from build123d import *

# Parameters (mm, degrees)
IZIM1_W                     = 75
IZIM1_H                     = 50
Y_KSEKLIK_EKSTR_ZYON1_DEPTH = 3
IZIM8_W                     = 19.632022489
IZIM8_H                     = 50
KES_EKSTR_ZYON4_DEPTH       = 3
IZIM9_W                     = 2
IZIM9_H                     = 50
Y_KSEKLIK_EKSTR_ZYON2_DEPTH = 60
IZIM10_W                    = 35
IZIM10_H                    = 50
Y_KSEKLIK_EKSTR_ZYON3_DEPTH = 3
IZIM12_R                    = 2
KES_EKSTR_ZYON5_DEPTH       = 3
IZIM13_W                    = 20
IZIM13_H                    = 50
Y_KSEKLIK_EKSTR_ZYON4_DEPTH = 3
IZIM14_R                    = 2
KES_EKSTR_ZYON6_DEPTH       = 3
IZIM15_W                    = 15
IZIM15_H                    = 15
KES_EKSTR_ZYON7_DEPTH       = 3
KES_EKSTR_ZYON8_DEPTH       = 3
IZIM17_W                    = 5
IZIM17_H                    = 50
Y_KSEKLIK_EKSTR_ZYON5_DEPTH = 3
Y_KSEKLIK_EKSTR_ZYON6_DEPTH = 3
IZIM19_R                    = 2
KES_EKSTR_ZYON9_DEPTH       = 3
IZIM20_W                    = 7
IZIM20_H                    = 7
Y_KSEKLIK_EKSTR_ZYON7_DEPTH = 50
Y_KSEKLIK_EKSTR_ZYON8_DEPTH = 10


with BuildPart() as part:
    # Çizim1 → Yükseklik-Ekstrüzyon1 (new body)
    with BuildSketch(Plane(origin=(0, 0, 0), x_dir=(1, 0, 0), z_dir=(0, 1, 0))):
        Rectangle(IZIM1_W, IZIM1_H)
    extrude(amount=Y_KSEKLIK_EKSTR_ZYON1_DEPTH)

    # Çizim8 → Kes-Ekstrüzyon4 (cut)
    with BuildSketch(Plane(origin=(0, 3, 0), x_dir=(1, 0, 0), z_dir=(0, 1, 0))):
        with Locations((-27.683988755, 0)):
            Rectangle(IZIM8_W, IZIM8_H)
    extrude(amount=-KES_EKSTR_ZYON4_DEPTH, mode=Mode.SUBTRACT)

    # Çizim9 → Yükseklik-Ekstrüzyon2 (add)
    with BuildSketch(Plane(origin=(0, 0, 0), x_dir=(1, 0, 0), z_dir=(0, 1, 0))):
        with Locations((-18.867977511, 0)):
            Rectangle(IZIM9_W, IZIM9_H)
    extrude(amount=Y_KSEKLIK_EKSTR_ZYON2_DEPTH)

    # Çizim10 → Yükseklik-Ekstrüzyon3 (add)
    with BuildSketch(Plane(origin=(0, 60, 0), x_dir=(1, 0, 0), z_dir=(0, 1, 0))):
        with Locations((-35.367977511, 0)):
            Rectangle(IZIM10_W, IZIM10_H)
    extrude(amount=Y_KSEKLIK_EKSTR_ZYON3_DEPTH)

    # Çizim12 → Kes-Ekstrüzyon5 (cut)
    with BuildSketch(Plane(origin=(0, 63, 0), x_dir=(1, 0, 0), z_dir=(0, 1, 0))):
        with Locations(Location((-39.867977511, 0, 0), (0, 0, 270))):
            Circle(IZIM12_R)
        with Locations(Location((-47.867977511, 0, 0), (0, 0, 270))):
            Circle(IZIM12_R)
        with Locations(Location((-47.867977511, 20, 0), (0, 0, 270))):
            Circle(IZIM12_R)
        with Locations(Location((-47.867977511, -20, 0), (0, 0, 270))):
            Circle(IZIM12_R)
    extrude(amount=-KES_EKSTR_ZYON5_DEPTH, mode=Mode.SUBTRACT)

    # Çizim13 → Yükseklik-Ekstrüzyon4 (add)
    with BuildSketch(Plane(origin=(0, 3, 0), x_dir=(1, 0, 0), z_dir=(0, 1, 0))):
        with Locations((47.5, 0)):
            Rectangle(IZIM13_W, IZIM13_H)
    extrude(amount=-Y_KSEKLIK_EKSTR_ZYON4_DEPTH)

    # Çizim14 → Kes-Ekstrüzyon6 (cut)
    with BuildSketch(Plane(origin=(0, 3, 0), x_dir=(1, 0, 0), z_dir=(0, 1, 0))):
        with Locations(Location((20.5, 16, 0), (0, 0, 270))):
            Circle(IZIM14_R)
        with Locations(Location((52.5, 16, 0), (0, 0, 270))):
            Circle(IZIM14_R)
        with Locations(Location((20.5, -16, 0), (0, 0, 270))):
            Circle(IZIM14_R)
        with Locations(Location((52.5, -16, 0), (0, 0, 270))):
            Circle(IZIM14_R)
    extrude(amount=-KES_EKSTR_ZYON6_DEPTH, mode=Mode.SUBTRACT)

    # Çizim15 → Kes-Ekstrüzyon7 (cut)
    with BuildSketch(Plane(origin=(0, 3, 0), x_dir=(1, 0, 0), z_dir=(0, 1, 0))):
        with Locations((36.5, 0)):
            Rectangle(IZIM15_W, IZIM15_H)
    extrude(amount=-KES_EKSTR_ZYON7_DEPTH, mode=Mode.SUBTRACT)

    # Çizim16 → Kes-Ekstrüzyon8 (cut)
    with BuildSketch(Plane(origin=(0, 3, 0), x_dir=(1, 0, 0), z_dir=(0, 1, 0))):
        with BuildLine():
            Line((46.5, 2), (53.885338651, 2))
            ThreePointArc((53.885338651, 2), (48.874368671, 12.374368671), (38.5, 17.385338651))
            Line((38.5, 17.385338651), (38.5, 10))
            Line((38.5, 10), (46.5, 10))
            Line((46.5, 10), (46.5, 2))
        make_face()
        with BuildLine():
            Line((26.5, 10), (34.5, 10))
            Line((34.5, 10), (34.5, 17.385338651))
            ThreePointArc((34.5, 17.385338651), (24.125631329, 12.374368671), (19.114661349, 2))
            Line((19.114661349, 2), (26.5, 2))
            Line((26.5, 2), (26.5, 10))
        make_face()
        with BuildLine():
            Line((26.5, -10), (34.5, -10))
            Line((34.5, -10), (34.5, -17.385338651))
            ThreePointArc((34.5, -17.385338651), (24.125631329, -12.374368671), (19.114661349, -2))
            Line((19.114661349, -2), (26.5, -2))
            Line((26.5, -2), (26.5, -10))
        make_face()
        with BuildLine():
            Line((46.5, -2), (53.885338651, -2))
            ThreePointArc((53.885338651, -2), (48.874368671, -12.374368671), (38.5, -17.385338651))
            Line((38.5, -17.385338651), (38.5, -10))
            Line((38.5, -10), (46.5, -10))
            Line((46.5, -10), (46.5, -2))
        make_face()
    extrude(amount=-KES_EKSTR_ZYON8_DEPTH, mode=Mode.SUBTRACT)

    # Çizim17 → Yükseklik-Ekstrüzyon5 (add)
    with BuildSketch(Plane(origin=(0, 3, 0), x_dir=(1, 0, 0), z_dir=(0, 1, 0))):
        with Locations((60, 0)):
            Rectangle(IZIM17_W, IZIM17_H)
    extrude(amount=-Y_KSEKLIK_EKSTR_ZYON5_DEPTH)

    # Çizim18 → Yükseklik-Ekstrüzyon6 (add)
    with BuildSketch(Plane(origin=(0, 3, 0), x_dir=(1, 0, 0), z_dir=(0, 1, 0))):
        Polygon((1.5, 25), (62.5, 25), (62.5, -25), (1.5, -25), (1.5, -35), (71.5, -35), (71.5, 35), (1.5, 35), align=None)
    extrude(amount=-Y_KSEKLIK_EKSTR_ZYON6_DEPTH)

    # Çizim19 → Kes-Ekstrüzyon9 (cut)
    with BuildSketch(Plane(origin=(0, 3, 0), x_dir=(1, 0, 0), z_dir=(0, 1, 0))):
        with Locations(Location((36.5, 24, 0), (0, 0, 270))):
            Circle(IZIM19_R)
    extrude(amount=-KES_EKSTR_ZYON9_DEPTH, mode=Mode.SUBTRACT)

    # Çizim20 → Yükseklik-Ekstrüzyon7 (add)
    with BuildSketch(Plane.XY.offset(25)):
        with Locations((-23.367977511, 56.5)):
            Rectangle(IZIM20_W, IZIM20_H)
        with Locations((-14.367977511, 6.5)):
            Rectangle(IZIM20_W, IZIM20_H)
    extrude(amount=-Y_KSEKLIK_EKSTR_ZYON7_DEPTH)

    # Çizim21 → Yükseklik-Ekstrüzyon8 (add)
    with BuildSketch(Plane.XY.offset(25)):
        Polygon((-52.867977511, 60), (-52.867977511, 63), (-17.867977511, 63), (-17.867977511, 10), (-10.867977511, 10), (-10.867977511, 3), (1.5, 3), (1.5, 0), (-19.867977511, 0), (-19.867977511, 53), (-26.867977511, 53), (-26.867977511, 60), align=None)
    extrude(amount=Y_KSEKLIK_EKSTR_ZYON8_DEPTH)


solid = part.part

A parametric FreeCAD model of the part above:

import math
import FreeCAD as App
import Part
import Sketcher

V = App.Vector


def add_polygon(sketch, points):
    """Adds a closed chain of lines whose ends are joined by coincident constraints."""
    first, n = sketch.GeometryCount, len(points)
    for a, b in zip(points, points[1:] + points[:1]):
        sketch.addGeometry(Part.LineSegment(App.Vector(*a, 0), App.Vector(*b, 0)), False)
    for i in range(n):
        sketch.addConstraint(Sketcher.Constraint("Coincident", first + i, 2, first + (i + 1) % n, 1))

doc = App.newDocument("Part")
body = doc.addObject("PartDesign::Body", "Body")

# Sketch on XZ plane
sketch1 = doc.addObject("Sketcher::SketchObject", "Sketch")
body.addObject(sketch1)
sketch1.AttachmentSupport = (doc.XZ_Plane, [""])
sketch1.MapMode = "FlatFace"
add_polygon(sketch1, [(-37.5, -25), (-37.5, 25), (37.5, 25), (37.5, -25)])  # lines 0-3
sketch1.addConstraint([
    Sketcher.Constraint("Vertical", 0),
    Sketcher.Constraint("Horizontal", 1),
    Sketcher.Constraint("Vertical", 2),
    Sketcher.Constraint("Horizontal", 3),
    Sketcher.Constraint("Symmetric", 0, 2, 2, 2, -1, 1),
    Sketcher.Constraint("DistanceX", 1, 1, 1, 2, 75.0),
    Sketcher.Constraint("DistanceY", 0, 1, 0, 2, 50.0),
])
pad1 = doc.addObject("PartDesign::Pad", "Pad")
body.addObject(pad1)
pad1.Profile = sketch1
pad1.Length = 3
pad1.Reversed = True

# Sketch on XZ plane
sketch2 = doc.addObject("Sketcher::SketchObject", "Sketch001")
body.addObject(sketch2)
sketch2.AttachmentSupport = (doc.XZ_Plane, [""])
sketch2.MapMode = "FlatFace"
sketch2.AttachmentOffset = App.Placement(V(0, 0, -3), App.Rotation())
add_polygon(sketch2, [(-37.5, -25), (-37.5, 25), (-17.867978, 25), (-17.867978, -25)])  # lines 0-3
sketch2.addConstraint([
    Sketcher.Constraint("Vertical", 0),
    Sketcher.Constraint("Horizontal", 1),
    Sketcher.Constraint("Vertical", 2),
    Sketcher.Constraint("Horizontal", 3),
    Sketcher.Constraint("DistanceY", 0, 1, 0, 2, 50.0),
    Sketcher.Constraint("DistanceY", -1, 1, 0, 2, 25.0),
    Sketcher.Constraint("DistanceX", 0, 2, -1, 1, 37.5),
    Sketcher.Constraint("DistanceX", 1, 1, 1, 2, 19.632022),
])
pocket1 = doc.addObject("PartDesign::Pocket", "Pocket")
body.addObject(pocket1)
pocket1.Profile = sketch2
pocket1.Length = 3
pocket1.Reversed = True

# Sketch on XZ plane
sketch3 = doc.addObject("Sketcher::SketchObject", "Sketch002")
body.addObject(sketch3)
sketch3.AttachmentSupport = (doc.XZ_Plane, [""])
sketch3.MapMode = "FlatFace"
add_polygon(sketch3, [(-19.867978, -25), (-19.867978, 25), (-17.867978, 25), (-17.867978, -25)])  # lines 0-3
sketch3.addConstraint([
    Sketcher.Constraint("Vertical", 0),
    Sketcher.Constraint("Horizontal", 1),
    Sketcher.Constraint("Vertical", 2),
    Sketcher.Constraint("Horizontal", 3),
    Sketcher.Constraint("DistanceX", 1, 1, 1, 2, 2.0),
    Sketcher.Constraint("DistanceY", 0, 1, 0, 2, 50.0),
    Sketcher.Constraint("DistanceY", -1, 1, 0, 2, 25.0),
    Sketcher.Constraint("DistanceX", 0, 2, -1, 1, 19.867978),
])
pad2 = doc.addObject("PartDesign::Pad", "Pad001")
body.addObject(pad2)
pad2.Profile = sketch3
pad2.Length = 60
pad2.Reversed = True

# Sketch on XZ plane
sketch4 = doc.addObject("Sketcher::SketchObject", "Sketch003")
body.addObject(sketch4)
sketch4.AttachmentSupport = (doc.XZ_Plane, [""])
sketch4.MapMode = "FlatFace"
sketch4.AttachmentOffset = App.Placement(V(0, 0, -60), App.Rotation())
add_polygon(sketch4, [(-52.867978, -25), (-52.867978, 25), (-17.867978, 25), (-17.867978, -25)])  # lines 0-3
sketch4.addConstraint([
    Sketcher.Constraint("Vertical", 0),
    Sketcher.Constraint("Horizontal", 1),
    Sketcher.Constraint("Vertical", 2),
    Sketcher.Constraint("Horizontal", 3),
    Sketcher.Constraint("DistanceX", 1, 1, 1, 2, 35.0),
    Sketcher.Constraint("DistanceY", 0, 1, 0, 2, 50.0),
    Sketcher.Constraint("DistanceY", -1, 1, 0, 2, 25.0),
    Sketcher.Constraint("DistanceX", 0, 2, -1, 1, 52.867978),
])
pad3 = doc.addObject("PartDesign::Pad", "Pad002")
body.addObject(pad3)
pad3.Profile = sketch4
pad3.Length = 3
pad3.Reversed = True

# Sketch on XZ plane
sketch5 = doc.addObject("Sketcher::SketchObject", "Sketch004")
body.addObject(sketch5)
sketch5.AttachmentSupport = (doc.XZ_Plane, [""])
sketch5.MapMode = "FlatFace"
sketch5.AttachmentOffset = App.Placement(V(0, 0, -63), App.Rotation())
sketch5.addGeometry([
    Part.Circle(V(-39.867978, 0, 0), V(0, 0, 1), 2),
    Part.Circle(V(-47.867978, 0, 0), V(0, 0, 1), 2),
    Part.Circle(V(-47.867978, -20, 0), V(0, 0, 1), 2),
    Part.Circle(V(-47.867978, 20, 0), V(0, 0, 1), 2),
], False)
sketch5.addConstraint([
    Sketcher.Constraint("Equal", 0, 1),
    Sketcher.Constraint("Equal", 1, 2),
    Sketcher.Constraint("Equal", 2, 3),
    Sketcher.Constraint("Symmetric", 2, 3, 3, 3, -1),
    Sketcher.Constraint("PointOnObject", 0, 3, -1),
    Sketcher.Constraint("PointOnObject", 1, 3, -1),
    Sketcher.Constraint("Vertical", 1, 3, 2, 3),
    Sketcher.Constraint("Diameter", 0, 4.0),
    Sketcher.Constraint("DistanceY", 2, 3, -1, 1, 20.0),
    Sketcher.Constraint("DistanceX", 1, 3, 0, 3, 8.0),
    Sketcher.Constraint("DistanceX", 0, 3, -1, 1, 39.867978),
])
pocket2 = doc.addObject("PartDesign::Pocket", "Pocket001")
body.addObject(pocket2)
pocket2.Profile = sketch5
pocket2.Length = 3
pocket2.Reversed = True

# Sketch on XZ plane
sketch6 = doc.addObject("Sketcher::SketchObject", "Sketch005")
body.addObject(sketch6)
sketch6.AttachmentSupport = (doc.XZ_Plane, [""])
sketch6.MapMode = "FlatFace"
sketch6.AttachmentOffset = App.Placement(V(0, 0, -3), App.Rotation())
add_polygon(sketch6, [(37.5, -25), (37.5, 25), (57.5, 25), (57.5, -25)])  # lines 0-3
sketch6.addConstraint([
    Sketcher.Constraint("Vertical", 0),
    Sketcher.Constraint("Horizontal", 1),
    Sketcher.Constraint("Vertical", 2),
    Sketcher.Constraint("Horizontal", 3),
    Sketcher.Constraint("DistanceX", 1, 1, 1, 2, 20.0),
    Sketcher.Constraint("DistanceY", 0, 1, 0, 2, 50.0),
    Sketcher.Constraint("DistanceY", -1, 1, 0, 2, 25.0),
    Sketcher.Constraint("DistanceX", -1, 1, 0, 2, 37.5),
])
pad4 = doc.addObject("PartDesign::Pad", "Pad003")
body.addObject(pad4)
pad4.Profile = sketch6
pad4.Length = 3

# Sketch on XZ plane
sketch7 = doc.addObject("Sketcher::SketchObject", "Sketch006")
body.addObject(sketch7)
sketch7.AttachmentSupport = (doc.XZ_Plane, [""])
sketch7.MapMode = "FlatFace"
sketch7.AttachmentOffset = App.Placement(V(0, 0, -3), App.Rotation())
sketch7.addGeometry([
    Part.Circle(V(20.5, -16, 0), V(0, 0, 1), 2),
    Part.Circle(V(52.5, -16, 0), V(0, 0, 1), 2),
    Part.Circle(V(20.5, 16, 0), V(0, 0, 1), 2),
    Part.Circle(V(52.5, 16, 0), V(0, 0, 1), 2),
], False)
sketch7.addConstraint([
    Sketcher.Constraint("Equal", 0, 1),
    Sketcher.Constraint("Equal", 1, 2),
    Sketcher.Constraint("Equal", 2, 3),
    Sketcher.Constraint("Symmetric", 0, 3, 2, 3, -1),
    Sketcher.Constraint("Symmetric", 1, 3, 3, 3, -1),
    Sketcher.Constraint("Horizontal", 0, 3, 1, 3),
    Sketcher.Constraint("Diameter", 0, 4.0),
    Sketcher.Constraint("DistanceY", 0, 3, -1, 1, 16.0),
    Sketcher.Constraint("DistanceX", 0, 3, 1, 3, 32.0),
    Sketcher.Constraint("DistanceX", -1, 1, 0, 3, 20.5),
])
pocket3 = doc.addObject("PartDesign::Pocket", "Pocket002")
body.addObject(pocket3)
pocket3.Profile = sketch7
pocket3.Length = 3
pocket3.Reversed = True

# Sketch on XZ plane
sketch8 = doc.addObject("Sketcher::SketchObject", "Sketch007")
body.addObject(sketch8)
sketch8.AttachmentSupport = (doc.XZ_Plane, [""])
sketch8.MapMode = "FlatFace"
sketch8.AttachmentOffset = App.Placement(V(0, 0, -3), App.Rotation())
add_polygon(sketch8, [(29, -7.5), (29, 7.5), (44, 7.5), (44, -7.5)])  # lines 0-3
sketch8.addConstraint([
    Sketcher.Constraint("Vertical", 0),
    Sketcher.Constraint("Horizontal", 1),
    Sketcher.Constraint("Vertical", 2),
    Sketcher.Constraint("Horizontal", 3),
    Sketcher.Constraint("Equal", 3, 0),
    Sketcher.Constraint("DistanceX", 1, 1, 1, 2, 15.0),
    Sketcher.Constraint("DistanceX", -1, 1, 0, 2, 29.0),
    Sketcher.Constraint("DistanceY", -1, 1, 0, 2, 7.5),
])
pocket4 = doc.addObject("PartDesign::Pocket", "Pocket003")
body.addObject(pocket4)
pocket4.Profile = sketch8
pocket4.Length = 3
pocket4.Reversed = True

# Sketch on XZ plane
sketch9 = doc.addObject("Sketcher::SketchObject", "Sketch008")
body.addObject(sketch9)
sketch9.AttachmentSupport = (doc.XZ_Plane, [""])
sketch9.MapMode = "FlatFace"
sketch9.AttachmentOffset = App.Placement(V(0, 0, -3), App.Rotation())
sketch9.addGeometry([
    Part.LineSegment(V(46.5, -2, 0), V(53.885339, -2, 0)),  # 0
    Part.ArcOfCircle(Part.Circle(V(36.5, 0, 0), V(0, 0, 1), 17.5), math.radians(-83.437572), math.radians(-6.562428)),  # 1
    Part.LineSegment(V(38.5, -17.385339, 0), V(38.5, -10, 0)),  # 2
    Part.LineSegment(V(38.5, -10, 0), V(46.5, -10, 0)),  # 3
    Part.LineSegment(V(46.5, -10, 0), V(46.5, -2, 0)),  # 4
    Part.LineSegment(V(26.5, -10, 0), V(34.5, -10, 0)),  # 5
    Part.LineSegment(V(34.5, -10, 0), V(34.5, -17.385339, 0)),  # 6
    Part.ArcOfCircle(Part.Circle(V(36.5, 0, 0), V(0, 0, 1), 17.5), math.radians(-173.437572), math.radians(-96.562428)),  # 7
    Part.LineSegment(V(19.114661, -2, 0), V(26.5, -2, 0)),  # 8
    Part.LineSegment(V(26.5, -2, 0), V(26.5, -10, 0)),  # 9
    Part.LineSegment(V(34.5, 10, 0), V(26.5, 10, 0)),  # 10
    Part.LineSegment(V(26.5, 10, 0), V(26.5, 2, 0)),  # 11
    Part.LineSegment(V(26.5, 2, 0), V(19.114661, 2, 0)),  # 12
    Part.ArcOfCircle(Part.Circle(V(36.5, 0, 0), V(0, 0, 1), 17.5), math.radians(96.562428), math.radians(173.437572)),  # 13
    Part.LineSegment(V(34.5, 17.385339, 0), V(34.5, 10, 0)),  # 14
    Part.LineSegment(V(53.885339, 2, 0), V(46.5, 2, 0)),  # 15
    Part.LineSegment(V(46.5, 2, 0), V(46.5, 10, 0)),  # 16
    Part.LineSegment(V(46.5, 10, 0), V(38.5, 10, 0)),  # 17
    Part.LineSegment(V(38.5, 10, 0), V(38.5, 17.385339, 0)),  # 18
    Part.ArcOfCircle(Part.Circle(V(36.5, 0, 0), V(0, 0, 1), 17.5), math.radians(6.562428), math.radians(83.437572)),  # 19
], False)
sketch9.addConstraint([
    Sketcher.Constraint("Coincident", 0, 2, 1, 2),
    Sketcher.Constraint("Coincident", 1, 1, 2, 1),
    Sketcher.Constraint("Coincident", 2, 2, 3, 1),
    Sketcher.Constraint("Coincident", 3, 2, 4, 1),
    Sketcher.Constraint("Coincident", 4, 2, 0, 1),
    Sketcher.Constraint("Coincident", 5, 2, 6, 1),
    Sketcher.Constraint("Coincident", 6, 2, 7, 2),
    Sketcher.Constraint("Coincident", 7, 1, 8, 1),
    Sketcher.Constraint("Coincident", 8, 2, 9, 1),
    Sketcher.Constraint("Coincident", 9, 2, 5, 1),
    Sketcher.Constraint("Coincident", 10, 2, 11, 1),
    Sketcher.Constraint("Coincident", 11, 2, 12, 1),
    Sketcher.Constraint("Coincident", 12, 2, 13, 2),
    Sketcher.Constraint("Coincident", 13, 1, 14, 1),
    Sketcher.Constraint("Coincident", 14, 2, 10, 1),
    Sketcher.Constraint("Coincident", 15, 2, 16, 1),
    Sketcher.Constraint("Coincident", 16, 2, 17, 1),
    Sketcher.Constraint("Coincident", 17, 2, 18, 1),
    Sketcher.Constraint("Coincident", 18, 2, 19, 2),
    Sketcher.Constraint("Coincident", 19, 1, 15, 1),
    Sketcher.Constraint("Horizontal", 0),
    Sketcher.Constraint("Vertical", 2),
    Sketcher.Constraint("Horizontal", 3),
    Sketcher.Constraint("Vertical", 4),
    Sketcher.Constraint("Horizontal", 5),
    Sketcher.Constraint("Vertical", 6),
    Sketcher.Constraint("Horizontal", 8),
    Sketcher.Constraint("Vertical", 9),
    Sketcher.Constraint("Horizontal", 10),
    Sketcher.Constraint("Vertical", 11),
    Sketcher.Constraint("Horizontal", 12),
    Sketcher.Constraint("Vertical", 14),
    Sketcher.Constraint("Horizontal", 15),
    Sketcher.Constraint("Vertical", 16),
    Sketcher.Constraint("Horizontal", 17),
    Sketcher.Constraint("Vertical", 18),
    Sketcher.Constraint("Coincident", 7, 3, 1, 3),
    Sketcher.Constraint("Coincident", 13, 3, 1, 3),
    Sketcher.Constraint("Coincident", 19, 3, 1, 3),
    Sketcher.Constraint("Equal", 1, 7),
    Sketcher.Constraint("Equal", 7, 13),
    Sketcher.Constraint("Equal", 13, 19),
    Sketcher.Constraint("Symmetric", 9, 2, 10, 2, -1),
    Sketcher.Constraint("Symmetric", 7, 1, 12, 2, -1),
    Sketcher.Constraint("Symmetric", 4, 2, 15, 2, -1),
    Sketcher.Constraint("Symmetric", 2, 2, 17, 2, -1),
    Sketcher.Constraint("Horizontal", 3, 2, 5, 2),
    Sketcher.Constraint("Horizontal", 1, 1, 6, 2),
    Sketcher.Constraint("Horizontal", 4, 2, 7, 1),
    Sketcher.Constraint("Horizontal", 13, 1, 18, 2),
    Sketcher.Constraint("Equal", 3, 5),
    Sketcher.Constraint("Equal", 15, 2),
    Sketcher.Constraint("Equal", 17, 4),
    Sketcher.Constraint("Radius", 1, 17.5),
    Sketcher.Constraint("DistanceX", 3, 1, 3, 2, 8.0),
    Sketcher.Constraint("DistanceY", 0, 2, -1, 1, 2.0),
    Sketcher.Constraint("DistanceX", -1, 1, 1, 3, 36.5),
])
pocket5 = doc.addObject("PartDesign::Pocket", "Pocket004")
body.addObject(pocket5)
pocket5.Profile = sketch9
pocket5.Length = 3
pocket5.Reversed = True

# Sketch on XZ plane
sketch10 = doc.addObject("Sketcher::SketchObject", "Sketch009")
body.addObject(sketch10)
sketch10.AttachmentSupport = (doc.XZ_Plane, [""])
sketch10.MapMode = "FlatFace"
sketch10.AttachmentOffset = App.Placement(V(0, 0, -3), App.Rotation())
add_polygon(sketch10, [(57.5, -25), (57.5, 25), (62.5, 25), (62.5, -25)])  # lines 0-3
sketch10.addConstraint([
    Sketcher.Constraint("Vertical", 0),
    Sketcher.Constraint("Horizontal", 1),
    Sketcher.Constraint("Vertical", 2),
    Sketcher.Constraint("Horizontal", 3),
    Sketcher.Constraint("DistanceX", 1, 1, 1, 2, 5.0),
    Sketcher.Constraint("DistanceY", 0, 1, 0, 2, 50.0),
    Sketcher.Constraint("DistanceY", -1, 1, 0, 2, 25.0),
    Sketcher.Constraint("DistanceX", -1, 1, 0, 2, 57.5),
])
pad5 = doc.addObject("PartDesign::Pad", "Pad004")
body.addObject(pad5)
pad5.Profile = sketch10
pad5.Length = 3

# Sketch on XZ plane
sketch11 = doc.addObject("Sketcher::SketchObject", "Sketch010")
body.addObject(sketch11)
sketch11.AttachmentSupport = (doc.XZ_Plane, [""])
sketch11.MapMode = "FlatFace"
sketch11.AttachmentOffset = App.Placement(V(0, 0, -3), App.Rotation())
add_polygon(sketch11, [(1.5, -25), (62.5, -25), (62.5, 25), (1.5, 25), (1.5, 35), (71.5, 35), (71.5, -35), (1.5, -35)])  # lines 0-7
sketch11.addConstraint([
    Sketcher.Constraint("Horizontal", 0),
    Sketcher.Constraint("Vertical", 1),
    Sketcher.Constraint("Horizontal", 2),
    Sketcher.Constraint("Vertical", 3),
    Sketcher.Constraint("Horizontal", 4),
    Sketcher.Constraint("Vertical", 5),
    Sketcher.Constraint("Horizontal", 6),
    Sketcher.Constraint("Vertical", 7),
    Sketcher.Constraint("Symmetric", 3, 2, 6, 2, -1),
    Sketcher.Constraint("Equal", 6, 5),
    Sketcher.Constraint("Equal", 3, 7),
    Sketcher.Constraint("DistanceX", 0, 1, 0, 2, 61.0),
    Sketcher.Constraint("DistanceX", 4, 1, 4, 2, 70.0),
    Sketcher.Constraint("DistanceY", 1, 1, 1, 2, 50.0),
    Sketcher.Constraint("DistanceX", -1, 1, 0, 2, 62.5),
])
pad6 = doc.addObject("PartDesign::Pad", "Pad005")
body.addObject(pad6)
pad6.Profile = sketch11
pad6.Length = 3

# Sketch on XZ plane
sketch12 = doc.addObject("Sketcher::SketchObject", "Sketch011")
body.addObject(sketch12)
sketch12.AttachmentSupport = (doc.XZ_Plane, [""])
sketch12.MapMode = "FlatFace"
sketch12.AttachmentOffset = App.Placement(V(0, 0, -3), App.Rotation())
sketch12.addGeometry(Part.Circle(V(36.5, -24, 0), V(0, 0, 1), 2), False)
sketch12.addConstraint([
    Sketcher.Constraint("Diameter", 0, 4.0),
    Sketcher.Constraint("DistanceY", 0, 3, -1, 1, 24.0),
    Sketcher.Constraint("DistanceX", -1, 1, 0, 3, 36.5),
])
pocket6 = doc.addObject("PartDesign::Pocket", "Pocket005")
body.addObject(pocket6)
pocket6.Profile = sketch12
pocket6.Length = 3
pocket6.Reversed = True

# Sketch on XY plane
sketch13 = doc.addObject("Sketcher::SketchObject", "Sketch012")
body.addObject(sketch13)
sketch13.AttachmentSupport = (doc.XY_Plane, [""])
sketch13.MapMode = "FlatFace"
sketch13.AttachmentOffset = App.Placement(V(0, 0, 25), App.Rotation())
add_polygon(sketch13, [(-26.867978, 60), (-26.867978, 53), (-19.867978, 53), (-19.867978, 60)])  # lines 0-3
add_polygon(sketch13, [(-17.867978, 10), (-17.867978, 3), (-10.867978, 3), (-10.867978, 10)])  # lines 4-7
sketch13.addConstraint([
    Sketcher.Constraint("Vertical", 0),
    Sketcher.Constraint("Horizontal", 1),
    Sketcher.Constraint("Vertical", 2),
    Sketcher.Constraint("Horizontal", 3),
    Sketcher.Constraint("Vertical", 4),
    Sketcher.Constraint("Horizontal", 5),
    Sketcher.Constraint("Vertical", 6),
    Sketcher.Constraint("Horizontal", 7),
    Sketcher.Constraint("Equal", 3, 5),
    Sketcher.Constraint("Equal", 7, 0),
    Sketcher.Constraint("Equal", 2, 4),
    Sketcher.Constraint("DistanceX", 1, 1, 1, 2, 7.0),
    Sketcher.Constraint("DistanceY", -1, 1, 0, 2, 53.0),
    Sketcher.Constraint("DistanceY", -1, 1, 4, 2, 3.0),
    Sketcher.Constraint("DistanceX", 1, 2, 4, 2, 2.0),
    Sketcher.Constraint("DistanceX", 0, 2, -1, 1, 26.867978),
])
pad7 = doc.addObject("PartDesign::Pad", "Pad006")
body.addObject(pad7)
pad7.Profile = sketch13
pad7.Length = 50
pad7.Reversed = True

# Sketch on XY plane
sketch14 = doc.addObject("Sketcher::SketchObject", "Sketch013")
body.addObject(sketch14)
sketch14.AttachmentSupport = (doc.XY_Plane, [""])
sketch14.MapMode = "FlatFace"
sketch14.AttachmentOffset = App.Placement(V(0, 0, 25), App.Rotation())
add_polygon(sketch14, [(-52.867978, 63), (-52.867978, 60), (-26.867978, 60), (-26.867978, 53), (-19.867978, 53), (-19.867978, 0), (1.5, 0), (1.5, 3), (-10.867978, 3), (-10.867978, 10), (-17.867978, 10), (-17.867978, 63)])  # lines 0-11
sketch14.addConstraint([
    Sketcher.Constraint("Vertical", 0),
    Sketcher.Constraint("Horizontal", 1),
    Sketcher.Constraint("Vertical", 2),
    Sketcher.Constraint("Horizontal", 3),
    Sketcher.Constraint("Vertical", 4),
    Sketcher.Constraint("Horizontal", 5),
    Sketcher.Constraint("Vertical", 6),
    Sketcher.Constraint("Horizontal", 7),
    Sketcher.Constraint("Vertical", 8),
    Sketcher.Constraint("Horizontal", 9),
    Sketcher.Constraint("Vertical", 10),
    Sketcher.Constraint("Horizontal", 11),
    Sketcher.Constraint("PointOnObject", 4, 2, -1),
    Sketcher.Constraint("Equal", 3, 9),
    Sketcher.Constraint("Equal", 9, 2),
    Sketcher.Constraint("Equal", 0, 6),
    Sketcher.Constraint("Equal", 2, 8),
    Sketcher.Constraint("DistanceX", 1, 1, 1, 2, 26.0),
    Sketcher.Constraint("DistanceX", 3, 1, 3, 2, 7.0),
    Sketcher.Constraint("DistanceX", 11, 2, 11, 1, 35.0),
    Sketcher.Constraint("DistanceY", 0, 2, 0, 1, 3.0),
    Sketcher.Constraint("DistanceY", 4, 2, 4, 1, 53.0),
    Sketcher.Constraint("DistanceX", -1, 1, 5, 2, 1.5),
    Sketcher.Constraint("DistanceX", 5, 1, 5, 2, 21.367978),
])
pad8 = doc.addObject("PartDesign::Pad", "Pad007")
body.addObject(pad8)
pad8.Profile = sketch14
pad8.Length = 10

doc.recompute()
